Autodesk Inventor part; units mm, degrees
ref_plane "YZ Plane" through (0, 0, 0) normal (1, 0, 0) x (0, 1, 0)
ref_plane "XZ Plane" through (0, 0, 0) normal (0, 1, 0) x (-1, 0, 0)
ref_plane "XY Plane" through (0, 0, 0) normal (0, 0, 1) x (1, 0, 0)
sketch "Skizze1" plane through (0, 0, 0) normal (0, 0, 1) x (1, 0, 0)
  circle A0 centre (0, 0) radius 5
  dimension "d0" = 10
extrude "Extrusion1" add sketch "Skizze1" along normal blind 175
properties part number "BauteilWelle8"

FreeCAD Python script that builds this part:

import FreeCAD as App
import Part
import Sketcher
from FreeCAD import Vector

doc = App.newDocument("Part")
body = doc.addObject("PartDesign::Body", "Body")

sketch1 = body.newObject("Sketcher::SketchObject", "Sketch")
sketch1.AttachmentSupport = (doc.getObject("XY_Plane"), [""])
sketch1.MapMode = "FlatFace"
sketch1.addGeometry(Part.Circle(Vector(0, 0, 0), Vector(0, 0, 1), 5), False)
sketch1.addConstraint([
    Sketcher.Constraint("Coincident", 0, 3, -1, 1),
    Sketcher.Constraint("Diameter", 0, 10.0),
])
pad1 = body.newObject("PartDesign::Pad", "Pad")
pad1.Profile = sketch1
pad1.Length = 175

doc.recompute()
